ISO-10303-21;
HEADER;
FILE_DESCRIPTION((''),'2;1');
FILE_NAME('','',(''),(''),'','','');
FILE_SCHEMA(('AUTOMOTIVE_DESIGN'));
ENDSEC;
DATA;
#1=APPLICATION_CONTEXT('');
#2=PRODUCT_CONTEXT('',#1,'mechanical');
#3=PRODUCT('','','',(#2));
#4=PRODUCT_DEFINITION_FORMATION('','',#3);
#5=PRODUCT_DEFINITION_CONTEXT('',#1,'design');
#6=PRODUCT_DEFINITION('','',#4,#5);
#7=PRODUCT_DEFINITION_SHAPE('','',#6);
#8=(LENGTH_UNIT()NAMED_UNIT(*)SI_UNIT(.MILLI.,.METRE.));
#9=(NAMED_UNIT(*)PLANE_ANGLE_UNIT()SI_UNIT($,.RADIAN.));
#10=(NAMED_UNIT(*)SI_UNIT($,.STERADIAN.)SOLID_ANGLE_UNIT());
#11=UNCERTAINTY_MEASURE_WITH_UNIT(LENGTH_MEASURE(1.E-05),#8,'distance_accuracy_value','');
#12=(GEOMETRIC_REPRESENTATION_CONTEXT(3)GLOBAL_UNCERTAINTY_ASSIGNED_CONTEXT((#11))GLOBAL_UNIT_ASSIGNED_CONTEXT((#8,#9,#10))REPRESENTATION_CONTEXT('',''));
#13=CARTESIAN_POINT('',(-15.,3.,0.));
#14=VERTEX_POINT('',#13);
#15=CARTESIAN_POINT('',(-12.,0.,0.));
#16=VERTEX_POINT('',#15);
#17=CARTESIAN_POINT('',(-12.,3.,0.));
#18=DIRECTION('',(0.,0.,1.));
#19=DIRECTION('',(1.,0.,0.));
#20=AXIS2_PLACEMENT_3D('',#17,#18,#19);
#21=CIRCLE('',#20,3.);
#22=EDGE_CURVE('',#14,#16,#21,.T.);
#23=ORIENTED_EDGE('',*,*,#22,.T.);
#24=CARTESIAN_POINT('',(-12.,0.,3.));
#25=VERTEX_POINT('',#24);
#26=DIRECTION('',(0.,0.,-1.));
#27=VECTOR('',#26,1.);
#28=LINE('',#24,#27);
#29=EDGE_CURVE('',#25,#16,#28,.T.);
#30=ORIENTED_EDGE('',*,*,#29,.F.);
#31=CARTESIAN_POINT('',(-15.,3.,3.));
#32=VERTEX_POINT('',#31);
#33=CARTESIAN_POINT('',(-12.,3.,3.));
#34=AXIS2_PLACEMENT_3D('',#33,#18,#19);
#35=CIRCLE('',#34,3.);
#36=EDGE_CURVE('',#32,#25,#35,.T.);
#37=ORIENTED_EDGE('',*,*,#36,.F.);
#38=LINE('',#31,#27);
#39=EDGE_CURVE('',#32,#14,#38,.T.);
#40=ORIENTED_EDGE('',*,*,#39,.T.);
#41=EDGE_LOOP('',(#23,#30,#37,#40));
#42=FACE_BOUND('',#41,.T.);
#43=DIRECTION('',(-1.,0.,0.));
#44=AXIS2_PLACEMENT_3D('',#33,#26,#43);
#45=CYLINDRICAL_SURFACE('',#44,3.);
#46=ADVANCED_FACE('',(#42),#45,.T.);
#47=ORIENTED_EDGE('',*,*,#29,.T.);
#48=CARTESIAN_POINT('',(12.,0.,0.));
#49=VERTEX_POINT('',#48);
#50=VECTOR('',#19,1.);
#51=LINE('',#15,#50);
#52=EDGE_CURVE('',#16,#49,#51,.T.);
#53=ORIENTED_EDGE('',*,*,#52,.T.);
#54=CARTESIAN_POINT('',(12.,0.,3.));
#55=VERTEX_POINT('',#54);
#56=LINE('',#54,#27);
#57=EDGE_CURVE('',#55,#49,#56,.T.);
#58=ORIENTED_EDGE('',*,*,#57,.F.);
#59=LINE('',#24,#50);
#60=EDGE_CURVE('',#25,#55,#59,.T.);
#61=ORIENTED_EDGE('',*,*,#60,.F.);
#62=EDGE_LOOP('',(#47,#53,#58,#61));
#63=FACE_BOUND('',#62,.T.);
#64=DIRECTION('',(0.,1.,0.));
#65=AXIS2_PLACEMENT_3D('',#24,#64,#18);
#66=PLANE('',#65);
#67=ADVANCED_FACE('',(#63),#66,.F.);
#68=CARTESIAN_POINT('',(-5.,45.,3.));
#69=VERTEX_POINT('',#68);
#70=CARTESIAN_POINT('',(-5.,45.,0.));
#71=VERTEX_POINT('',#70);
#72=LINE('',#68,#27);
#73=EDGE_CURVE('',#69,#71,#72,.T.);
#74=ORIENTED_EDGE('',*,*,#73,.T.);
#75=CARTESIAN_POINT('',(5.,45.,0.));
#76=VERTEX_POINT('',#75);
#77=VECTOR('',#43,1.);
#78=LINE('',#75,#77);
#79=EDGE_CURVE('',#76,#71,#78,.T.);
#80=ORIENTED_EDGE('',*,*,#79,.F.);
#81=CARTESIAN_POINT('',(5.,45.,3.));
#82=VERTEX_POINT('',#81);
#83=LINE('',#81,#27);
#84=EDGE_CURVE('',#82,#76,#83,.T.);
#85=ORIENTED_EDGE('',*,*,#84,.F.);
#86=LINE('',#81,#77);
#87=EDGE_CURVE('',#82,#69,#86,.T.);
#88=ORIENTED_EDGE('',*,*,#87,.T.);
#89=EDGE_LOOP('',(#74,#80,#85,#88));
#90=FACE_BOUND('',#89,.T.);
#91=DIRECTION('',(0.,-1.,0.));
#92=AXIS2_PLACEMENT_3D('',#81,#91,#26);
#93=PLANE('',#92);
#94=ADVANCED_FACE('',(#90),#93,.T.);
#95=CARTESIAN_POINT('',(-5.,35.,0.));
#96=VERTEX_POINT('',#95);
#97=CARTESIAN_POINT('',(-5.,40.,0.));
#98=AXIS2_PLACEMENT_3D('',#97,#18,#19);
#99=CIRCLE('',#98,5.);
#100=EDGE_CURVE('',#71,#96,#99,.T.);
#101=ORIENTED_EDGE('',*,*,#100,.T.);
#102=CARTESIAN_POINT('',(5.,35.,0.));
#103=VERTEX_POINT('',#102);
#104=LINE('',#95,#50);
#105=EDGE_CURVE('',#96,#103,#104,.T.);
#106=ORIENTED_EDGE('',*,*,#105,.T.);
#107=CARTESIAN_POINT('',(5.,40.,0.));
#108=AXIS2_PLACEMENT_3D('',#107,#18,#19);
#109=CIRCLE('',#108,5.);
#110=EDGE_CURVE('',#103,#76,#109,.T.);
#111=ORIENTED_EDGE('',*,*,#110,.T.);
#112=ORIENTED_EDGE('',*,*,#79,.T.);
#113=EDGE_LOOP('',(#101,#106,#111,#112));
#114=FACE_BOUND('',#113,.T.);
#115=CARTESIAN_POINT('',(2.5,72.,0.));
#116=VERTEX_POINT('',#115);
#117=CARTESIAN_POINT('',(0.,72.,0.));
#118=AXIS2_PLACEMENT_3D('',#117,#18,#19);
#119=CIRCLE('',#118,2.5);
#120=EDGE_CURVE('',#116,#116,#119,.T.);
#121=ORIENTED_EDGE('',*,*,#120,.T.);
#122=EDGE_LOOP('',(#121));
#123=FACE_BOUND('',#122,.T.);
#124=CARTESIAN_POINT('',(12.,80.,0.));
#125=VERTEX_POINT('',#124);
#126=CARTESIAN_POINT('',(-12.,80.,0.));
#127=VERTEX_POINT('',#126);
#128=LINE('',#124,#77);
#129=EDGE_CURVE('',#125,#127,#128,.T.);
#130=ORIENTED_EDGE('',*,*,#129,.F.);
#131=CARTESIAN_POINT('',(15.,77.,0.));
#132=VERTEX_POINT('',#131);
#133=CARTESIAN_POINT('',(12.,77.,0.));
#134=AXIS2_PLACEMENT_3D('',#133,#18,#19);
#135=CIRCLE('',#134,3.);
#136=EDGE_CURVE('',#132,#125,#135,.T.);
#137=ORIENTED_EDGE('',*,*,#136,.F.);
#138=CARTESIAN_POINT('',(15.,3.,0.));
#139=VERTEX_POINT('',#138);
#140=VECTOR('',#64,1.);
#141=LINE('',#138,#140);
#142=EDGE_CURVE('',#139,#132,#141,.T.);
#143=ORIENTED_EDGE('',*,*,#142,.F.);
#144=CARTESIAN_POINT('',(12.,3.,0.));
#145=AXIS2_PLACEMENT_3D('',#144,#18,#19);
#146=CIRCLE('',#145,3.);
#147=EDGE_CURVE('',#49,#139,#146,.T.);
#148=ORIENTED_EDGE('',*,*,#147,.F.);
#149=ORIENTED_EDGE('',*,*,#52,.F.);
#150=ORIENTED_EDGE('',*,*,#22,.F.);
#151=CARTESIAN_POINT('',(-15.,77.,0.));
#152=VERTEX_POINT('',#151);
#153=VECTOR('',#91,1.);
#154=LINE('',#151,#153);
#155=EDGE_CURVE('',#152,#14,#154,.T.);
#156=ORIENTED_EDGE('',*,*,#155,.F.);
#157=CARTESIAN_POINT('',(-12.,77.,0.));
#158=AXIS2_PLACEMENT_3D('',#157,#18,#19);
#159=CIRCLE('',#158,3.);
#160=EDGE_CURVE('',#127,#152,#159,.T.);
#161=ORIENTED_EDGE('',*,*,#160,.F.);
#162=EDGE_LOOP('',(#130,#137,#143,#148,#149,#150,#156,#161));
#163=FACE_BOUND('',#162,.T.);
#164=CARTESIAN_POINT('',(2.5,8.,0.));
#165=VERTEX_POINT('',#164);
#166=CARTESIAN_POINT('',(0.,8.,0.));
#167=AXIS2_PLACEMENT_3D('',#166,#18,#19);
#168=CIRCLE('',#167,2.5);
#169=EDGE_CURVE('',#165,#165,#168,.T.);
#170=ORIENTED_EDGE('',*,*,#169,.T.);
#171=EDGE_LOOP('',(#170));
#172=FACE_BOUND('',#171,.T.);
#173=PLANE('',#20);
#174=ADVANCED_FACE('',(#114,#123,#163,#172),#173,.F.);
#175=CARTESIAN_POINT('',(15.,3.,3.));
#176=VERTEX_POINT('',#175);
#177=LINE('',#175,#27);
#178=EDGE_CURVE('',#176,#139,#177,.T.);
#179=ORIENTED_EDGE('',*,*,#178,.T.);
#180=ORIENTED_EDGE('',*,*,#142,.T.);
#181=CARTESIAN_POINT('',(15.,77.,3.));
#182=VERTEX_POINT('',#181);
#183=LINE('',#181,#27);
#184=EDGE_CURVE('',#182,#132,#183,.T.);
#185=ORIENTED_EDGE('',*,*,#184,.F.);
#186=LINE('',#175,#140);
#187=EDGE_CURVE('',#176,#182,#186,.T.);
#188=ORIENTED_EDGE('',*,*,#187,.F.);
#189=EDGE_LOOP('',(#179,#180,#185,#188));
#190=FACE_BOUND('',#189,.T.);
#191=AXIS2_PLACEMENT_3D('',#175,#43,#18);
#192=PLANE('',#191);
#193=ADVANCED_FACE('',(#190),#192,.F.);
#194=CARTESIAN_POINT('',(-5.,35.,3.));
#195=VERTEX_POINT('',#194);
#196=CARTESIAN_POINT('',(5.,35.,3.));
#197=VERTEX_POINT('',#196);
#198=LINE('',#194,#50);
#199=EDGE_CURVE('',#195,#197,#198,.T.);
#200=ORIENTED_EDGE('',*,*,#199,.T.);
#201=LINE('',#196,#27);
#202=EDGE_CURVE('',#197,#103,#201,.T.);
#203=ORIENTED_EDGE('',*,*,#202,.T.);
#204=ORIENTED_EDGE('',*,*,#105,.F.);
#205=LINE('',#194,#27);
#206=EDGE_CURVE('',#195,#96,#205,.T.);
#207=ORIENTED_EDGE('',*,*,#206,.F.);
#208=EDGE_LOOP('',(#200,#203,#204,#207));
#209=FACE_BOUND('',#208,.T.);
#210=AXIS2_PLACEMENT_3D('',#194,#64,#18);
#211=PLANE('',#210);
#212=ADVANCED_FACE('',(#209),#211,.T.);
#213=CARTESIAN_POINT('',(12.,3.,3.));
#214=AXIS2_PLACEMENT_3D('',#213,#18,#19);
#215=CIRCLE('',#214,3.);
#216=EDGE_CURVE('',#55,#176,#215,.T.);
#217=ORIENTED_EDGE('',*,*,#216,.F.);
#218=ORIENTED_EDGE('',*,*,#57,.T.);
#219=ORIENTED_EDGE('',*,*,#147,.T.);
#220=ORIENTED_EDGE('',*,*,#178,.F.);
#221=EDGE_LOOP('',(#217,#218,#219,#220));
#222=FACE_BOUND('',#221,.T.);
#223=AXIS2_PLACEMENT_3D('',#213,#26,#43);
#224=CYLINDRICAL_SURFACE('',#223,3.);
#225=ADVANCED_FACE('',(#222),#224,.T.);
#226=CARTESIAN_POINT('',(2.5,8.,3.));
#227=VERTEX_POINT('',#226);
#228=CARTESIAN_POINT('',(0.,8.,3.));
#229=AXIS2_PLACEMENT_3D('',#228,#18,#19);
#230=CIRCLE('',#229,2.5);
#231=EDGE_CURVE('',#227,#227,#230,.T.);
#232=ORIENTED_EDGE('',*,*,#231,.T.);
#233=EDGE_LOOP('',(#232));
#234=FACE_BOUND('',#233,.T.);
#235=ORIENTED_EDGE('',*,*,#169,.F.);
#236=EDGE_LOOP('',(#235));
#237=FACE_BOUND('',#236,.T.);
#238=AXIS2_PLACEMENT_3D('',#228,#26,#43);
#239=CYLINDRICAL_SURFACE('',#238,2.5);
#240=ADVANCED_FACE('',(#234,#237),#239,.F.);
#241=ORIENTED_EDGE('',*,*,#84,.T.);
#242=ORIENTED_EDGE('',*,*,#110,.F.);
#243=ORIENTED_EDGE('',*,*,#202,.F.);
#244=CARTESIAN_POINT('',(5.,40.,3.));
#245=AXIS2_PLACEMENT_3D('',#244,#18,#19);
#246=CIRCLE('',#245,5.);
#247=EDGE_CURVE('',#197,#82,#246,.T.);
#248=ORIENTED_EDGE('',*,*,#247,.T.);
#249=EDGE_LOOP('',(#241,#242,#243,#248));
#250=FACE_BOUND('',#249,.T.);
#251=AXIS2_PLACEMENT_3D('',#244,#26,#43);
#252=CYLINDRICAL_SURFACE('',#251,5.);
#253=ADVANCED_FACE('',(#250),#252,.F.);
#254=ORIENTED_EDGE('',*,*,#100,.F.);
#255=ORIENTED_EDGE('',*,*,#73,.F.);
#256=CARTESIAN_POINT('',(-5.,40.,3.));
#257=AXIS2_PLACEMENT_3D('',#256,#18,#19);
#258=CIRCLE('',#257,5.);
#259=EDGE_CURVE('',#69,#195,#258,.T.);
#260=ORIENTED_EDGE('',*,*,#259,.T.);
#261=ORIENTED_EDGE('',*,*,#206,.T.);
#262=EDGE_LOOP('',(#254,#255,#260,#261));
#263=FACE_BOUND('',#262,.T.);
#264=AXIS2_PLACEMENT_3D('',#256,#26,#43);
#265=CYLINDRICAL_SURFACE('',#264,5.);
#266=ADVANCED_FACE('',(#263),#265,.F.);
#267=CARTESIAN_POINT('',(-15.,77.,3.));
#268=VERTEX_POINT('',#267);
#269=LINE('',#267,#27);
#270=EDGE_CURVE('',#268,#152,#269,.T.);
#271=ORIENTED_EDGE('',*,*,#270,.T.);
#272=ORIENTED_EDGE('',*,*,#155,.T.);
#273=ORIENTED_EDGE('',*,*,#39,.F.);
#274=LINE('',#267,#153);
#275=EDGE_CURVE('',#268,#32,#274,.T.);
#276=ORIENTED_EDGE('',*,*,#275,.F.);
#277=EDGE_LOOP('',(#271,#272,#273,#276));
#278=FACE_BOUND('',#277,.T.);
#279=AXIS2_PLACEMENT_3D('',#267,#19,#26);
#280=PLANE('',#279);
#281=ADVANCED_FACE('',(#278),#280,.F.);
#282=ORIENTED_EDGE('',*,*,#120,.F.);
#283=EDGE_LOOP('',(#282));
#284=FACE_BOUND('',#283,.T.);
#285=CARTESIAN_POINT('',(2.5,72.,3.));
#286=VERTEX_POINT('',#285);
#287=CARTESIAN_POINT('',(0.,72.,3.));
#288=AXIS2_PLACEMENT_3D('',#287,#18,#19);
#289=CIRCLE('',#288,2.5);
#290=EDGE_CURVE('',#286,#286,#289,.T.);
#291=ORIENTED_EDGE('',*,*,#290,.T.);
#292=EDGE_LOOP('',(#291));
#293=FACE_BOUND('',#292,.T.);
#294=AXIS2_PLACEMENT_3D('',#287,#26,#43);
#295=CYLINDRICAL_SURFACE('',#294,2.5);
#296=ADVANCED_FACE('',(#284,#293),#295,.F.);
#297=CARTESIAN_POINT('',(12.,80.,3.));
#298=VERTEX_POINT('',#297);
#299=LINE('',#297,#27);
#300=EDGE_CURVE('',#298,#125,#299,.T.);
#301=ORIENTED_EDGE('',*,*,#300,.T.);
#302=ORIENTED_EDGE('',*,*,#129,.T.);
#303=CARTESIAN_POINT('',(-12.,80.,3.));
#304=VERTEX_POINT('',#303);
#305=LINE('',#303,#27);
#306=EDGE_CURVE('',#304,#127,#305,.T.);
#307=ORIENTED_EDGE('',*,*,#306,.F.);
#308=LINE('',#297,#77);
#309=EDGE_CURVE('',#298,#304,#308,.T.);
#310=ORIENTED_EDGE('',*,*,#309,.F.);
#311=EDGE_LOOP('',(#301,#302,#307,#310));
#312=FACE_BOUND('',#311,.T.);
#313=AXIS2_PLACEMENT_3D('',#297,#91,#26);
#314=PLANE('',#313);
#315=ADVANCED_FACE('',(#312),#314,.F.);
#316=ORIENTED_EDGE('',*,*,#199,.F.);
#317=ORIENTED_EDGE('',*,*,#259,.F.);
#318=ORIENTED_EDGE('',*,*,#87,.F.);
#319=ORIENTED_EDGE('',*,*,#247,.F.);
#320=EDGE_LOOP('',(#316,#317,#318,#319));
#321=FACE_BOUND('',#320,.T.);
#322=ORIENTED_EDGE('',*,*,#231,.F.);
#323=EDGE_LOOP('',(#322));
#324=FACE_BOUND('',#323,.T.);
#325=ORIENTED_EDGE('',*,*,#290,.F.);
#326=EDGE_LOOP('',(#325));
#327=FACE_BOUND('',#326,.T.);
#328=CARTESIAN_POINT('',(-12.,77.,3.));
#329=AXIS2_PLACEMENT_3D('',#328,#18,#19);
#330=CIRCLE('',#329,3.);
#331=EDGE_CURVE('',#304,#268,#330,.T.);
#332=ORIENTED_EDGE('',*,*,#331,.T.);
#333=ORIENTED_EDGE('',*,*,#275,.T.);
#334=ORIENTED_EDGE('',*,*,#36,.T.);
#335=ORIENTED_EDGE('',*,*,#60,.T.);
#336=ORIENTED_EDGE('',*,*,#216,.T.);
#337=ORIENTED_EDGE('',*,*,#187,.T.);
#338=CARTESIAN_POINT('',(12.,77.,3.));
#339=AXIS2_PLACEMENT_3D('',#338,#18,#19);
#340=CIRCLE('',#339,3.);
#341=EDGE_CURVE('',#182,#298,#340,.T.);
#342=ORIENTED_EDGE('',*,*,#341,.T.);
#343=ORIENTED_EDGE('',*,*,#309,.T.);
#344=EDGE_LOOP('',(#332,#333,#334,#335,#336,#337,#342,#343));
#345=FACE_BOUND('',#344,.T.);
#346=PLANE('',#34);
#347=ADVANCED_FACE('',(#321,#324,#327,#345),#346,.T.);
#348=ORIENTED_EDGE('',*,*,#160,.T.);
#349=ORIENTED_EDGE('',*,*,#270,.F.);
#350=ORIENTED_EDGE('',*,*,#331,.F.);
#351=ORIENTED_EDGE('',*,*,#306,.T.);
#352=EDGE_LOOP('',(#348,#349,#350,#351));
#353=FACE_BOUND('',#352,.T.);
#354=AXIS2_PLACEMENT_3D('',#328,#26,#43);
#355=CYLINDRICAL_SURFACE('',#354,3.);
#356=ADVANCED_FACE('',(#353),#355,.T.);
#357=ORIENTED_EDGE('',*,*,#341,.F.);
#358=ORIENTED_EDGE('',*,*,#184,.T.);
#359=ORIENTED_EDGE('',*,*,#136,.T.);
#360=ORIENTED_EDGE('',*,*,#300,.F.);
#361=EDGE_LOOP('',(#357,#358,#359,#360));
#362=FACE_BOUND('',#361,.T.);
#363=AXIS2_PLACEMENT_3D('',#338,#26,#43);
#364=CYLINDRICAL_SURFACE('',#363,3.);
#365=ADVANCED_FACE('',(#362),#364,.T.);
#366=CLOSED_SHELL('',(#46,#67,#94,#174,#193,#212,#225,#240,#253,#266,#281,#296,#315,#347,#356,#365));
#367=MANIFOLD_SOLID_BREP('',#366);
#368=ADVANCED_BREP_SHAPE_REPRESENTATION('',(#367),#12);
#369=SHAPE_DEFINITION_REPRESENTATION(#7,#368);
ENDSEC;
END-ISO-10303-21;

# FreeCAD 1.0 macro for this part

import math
import FreeCAD as App
import Part
import Sketcher
from FreeCAD import Vector
Q = App.Units.Quantity

doc = App.newDocument("Part")
params = doc.addObject("Spreadsheet::Sheet", "Params")
for row, (alias, value) in enumerate([
    ("sketch1_radius", "3 mm"),
    ("sketch1_width", "24 mm"),
    ("sketch1_height", "74 mm"),
    ("pad1_length", "3 mm"),
    ("sketch2_diameter", "5 mm"),
    ("sketch2_radius", "5 mm"),
    ("sketch2_width", "10 mm"),
], start=1):
    params.set(f"A{row}", alias)
    params.set(f"B{row}", "=" + value)
    params.setAlias(f"B{row}", alias)

body = doc.addObject("PartDesign::Body", "Body")

sketch1 = doc.addObject("Sketcher::SketchObject", "Sketch")
body.addObject(sketch1)
sketch1.AttachmentSupport = (doc.XY_Plane, [""])
sketch1.MapMode = "FlatFace"
sketch1.addGeometry([
    Part.LineSegment(Vector(-12, 0, 0), Vector(12, 0, 0)),
    Part.ArcOfCircle(Part.Circle(Vector(12, 3, 0), Vector(0, 0, 1), 3), math.radians(-90), math.radians(0)),
    Part.LineSegment(Vector(15, 3, 0), Vector(15, 77, 0)),
    Part.ArcOfCircle(Part.Circle(Vector(12, 77, 0), Vector(0, 0, 1), 3), math.radians(0), math.radians(90)),
    Part.LineSegment(Vector(12, 80, 0), Vector(-12, 80, 0)),
    Part.ArcOfCircle(Part.Circle(Vector(-12, 77, 0), Vector(0, 0, 1), 3), math.radians(90), math.radians(180)),
    Part.LineSegment(Vector(-15, 77, 0), Vector(-15, 3, 0)),
    Part.ArcOfCircle(Part.Circle(Vector(-12, 3, 0), Vector(0, 0, 1), 3), math.radians(180), math.radians(270)),
], False)
sketch1.addConstraint([
    Sketcher.Constraint("Tangent", 0, 2, 1, 1),
    Sketcher.Constraint("Tangent", 1, 2, 2, 1),
    Sketcher.Constraint("Tangent", 2, 2, 3, 1),
    Sketcher.Constraint("Tangent", 3, 2, 4, 1),
    Sketcher.Constraint("Tangent", 4, 2, 5, 1),
    Sketcher.Constraint("Tangent", 5, 2, 6, 1),
    Sketcher.Constraint("Tangent", 6, 2, 7, 1),
    Sketcher.Constraint("Tangent", 7, 2, 0, 1),
    Sketcher.Constraint("Horizontal", 0),
    Sketcher.Constraint("Vertical", 2),
    Sketcher.Constraint("Horizontal", 4),
    Sketcher.Constraint("Vertical", 6),
    Sketcher.Constraint("Equal", 1, 3),
    Sketcher.Constraint("Equal", 3, 5),
    Sketcher.Constraint("Equal", 5, 7),
    Sketcher.Constraint("Symmetric", 0, 2, 7, 2, -1, 1),
    Sketcher.Constraint("Radius", 1, Q("3 mm")),
    Sketcher.Constraint("DistanceX", 0, 1, 0, 2, Q("24 mm")),
    Sketcher.Constraint("DistanceY", 2, 1, 2, 2, Q("74 mm")),
])
sketch1.setExpression("Constraints[16]", "Params.sketch1_radius")
sketch1.setExpression("Constraints[17]", "Params.sketch1_width")
sketch1.setExpression("Constraints[18]", "Params.sketch1_height")
pad1 = doc.addObject("PartDesign::Pad", "Pad")
body.addObject(pad1)
pad1.Profile = sketch1
pad1.setExpression("Length", "Params.pad1_length")

sketch2 = doc.addObject("Sketcher::SketchObject", "Sketch001")
body.addObject(sketch2)
sketch2.AttachmentSupport = (doc.XY_Plane, [""])
sketch2.MapMode = "FlatFace"
sketch2.addGeometry([
    Part.Circle(Vector(0, 8, 0), Vector(0, 0, 1), 2.5),
    Part.Circle(Vector(0, 72, 0), Vector(0, 0, 1), 2.5),
    Part.LineSegment(Vector(-5, 35, 0), Vector(5, 35, 0)),
    Part.ArcOfCircle(Part.Circle(Vector(5, 40, 0), Vector(0, 0, 1), 5), math.radians(-90), math.radians(90)),
    Part.LineSegment(Vector(5, 45, 0), Vector(-5, 45, 0)),
    Part.ArcOfCircle(Part.Circle(Vector(-5, 40, 0), Vector(0, 0, 1), 5), math.radians(90), math.radians(270)),
], False)
sketch2.addConstraint([
    Sketcher.Constraint("Tangent", 2, 2, 3, 1),
    Sketcher.Constraint("Tangent", 3, 2, 4, 1),
    Sketcher.Constraint("Tangent", 4, 2, 5, 1),
    Sketcher.Constraint("Tangent", 5, 2, 2, 1),
    Sketcher.Constraint("Horizontal", 2),
    Sketcher.Constraint("Horizontal", 4),
    Sketcher.Constraint("Equal", 0, 1),
    Sketcher.Constraint("PointOnObject", 0, 3, -2),
    Sketcher.Constraint("PointOnObject", 1, 3, -2),
    Sketcher.Constraint("Diameter", 0, Q("5 mm")),
    Sketcher.Constraint("Radius", 3, Q("5 mm")),
    Sketcher.Constraint("DistanceX", 2, 1, 2, 2, Q("10 mm")),
    Sketcher.Constraint("DistanceY", -1, 1, 0, 3, Q("8 mm")),
    Sketcher.Constraint("DistanceY", -1, 1, 1, 3, Q("72 mm")),
    Sketcher.Constraint("DistanceX", -1, 1, 3, 3, Q("5 mm")),
    Sketcher.Constraint("DistanceY", -1, 1, 3, 3, Q("40 mm")),
])
sketch2.setExpression("Constraints[9]", "Params.sketch2_diameter")
sketch2.setExpression("Constraints[10]", "Params.sketch2_radius")
sketch2.setExpression("Constraints[11]", "Params.sketch2_width")
pocket1 = doc.addObject("PartDesign::Pocket", "Pocket")
body.addObject(pocket1)
pocket1.Profile = sketch2
pocket1.Type = "ThroughAll"
pocket1.Reversed = True

doc.recompute()
